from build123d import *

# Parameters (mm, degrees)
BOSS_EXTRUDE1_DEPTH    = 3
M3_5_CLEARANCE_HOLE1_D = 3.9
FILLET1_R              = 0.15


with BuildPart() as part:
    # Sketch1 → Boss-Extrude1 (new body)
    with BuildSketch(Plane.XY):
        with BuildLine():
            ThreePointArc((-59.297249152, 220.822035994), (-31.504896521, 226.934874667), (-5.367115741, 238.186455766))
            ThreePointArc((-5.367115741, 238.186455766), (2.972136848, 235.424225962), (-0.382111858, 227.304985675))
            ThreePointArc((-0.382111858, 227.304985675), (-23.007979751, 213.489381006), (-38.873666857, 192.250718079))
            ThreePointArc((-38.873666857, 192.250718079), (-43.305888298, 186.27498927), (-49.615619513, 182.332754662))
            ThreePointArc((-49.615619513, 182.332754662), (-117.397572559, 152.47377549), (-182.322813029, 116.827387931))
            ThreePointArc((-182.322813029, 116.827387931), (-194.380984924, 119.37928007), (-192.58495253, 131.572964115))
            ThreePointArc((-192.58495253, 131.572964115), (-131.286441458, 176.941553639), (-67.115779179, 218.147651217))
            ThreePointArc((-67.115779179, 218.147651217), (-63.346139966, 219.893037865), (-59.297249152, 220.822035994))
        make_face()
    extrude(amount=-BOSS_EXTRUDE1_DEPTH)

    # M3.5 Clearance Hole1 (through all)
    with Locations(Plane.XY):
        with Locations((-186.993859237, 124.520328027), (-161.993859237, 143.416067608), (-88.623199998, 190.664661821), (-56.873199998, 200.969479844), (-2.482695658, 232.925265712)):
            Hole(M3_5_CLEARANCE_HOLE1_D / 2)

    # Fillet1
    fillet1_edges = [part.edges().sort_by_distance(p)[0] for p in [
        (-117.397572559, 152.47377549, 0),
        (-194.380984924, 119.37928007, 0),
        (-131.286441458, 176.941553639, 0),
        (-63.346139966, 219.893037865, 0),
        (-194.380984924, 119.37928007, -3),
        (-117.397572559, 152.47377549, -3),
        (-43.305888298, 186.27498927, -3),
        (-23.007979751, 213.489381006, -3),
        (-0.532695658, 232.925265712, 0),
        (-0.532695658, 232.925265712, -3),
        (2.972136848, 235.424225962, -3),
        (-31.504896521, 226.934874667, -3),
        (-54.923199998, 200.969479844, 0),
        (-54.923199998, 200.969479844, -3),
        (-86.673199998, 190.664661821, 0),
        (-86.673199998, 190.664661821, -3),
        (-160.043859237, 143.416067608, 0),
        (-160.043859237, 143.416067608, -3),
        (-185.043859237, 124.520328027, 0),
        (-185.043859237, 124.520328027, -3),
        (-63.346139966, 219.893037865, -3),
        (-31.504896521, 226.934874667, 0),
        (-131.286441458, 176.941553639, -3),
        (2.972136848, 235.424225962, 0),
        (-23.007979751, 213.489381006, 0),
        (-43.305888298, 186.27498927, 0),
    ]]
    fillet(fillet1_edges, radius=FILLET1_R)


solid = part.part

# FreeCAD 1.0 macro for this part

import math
import FreeCAD as App
import Part
import Sketcher

V = App.Vector
Q = App.Units.Quantity


def edges_at(feature, points):
    """Names of the edges that pass closest to the given points."""
    edges = feature.Shape.Edges
    near = lambda p: min(range(len(edges)), key=lambda i: edges[i].distToShape(Part.Vertex(*p))[0])
    return sorted({f"Edge{near(p) + 1}" for p in points})

doc = App.newDocument("Part")
body = doc.addObject("PartDesign::Body", "Body")

sketch1 = doc.addObject("Sketcher::SketchObject", "Sketch")
body.addObject(sketch1)
sketch1.AttachmentSupport = (doc.XY_Plane, [""])
sketch1.MapMode = "FlatFace"
sketch1.addGeometry(Part.ArcOfCircle(Part.Circle(V(-77.477618, 369.716207, 0), V(0, 0, 1), 150), math.radians(-83.038495), math.radians(-61.266473)), False)
sketch1.addGeometry(Part.ArcOfCircle(Part.Circle(V(-56.8732, 200.96948, 0), V(0, 0, 1), 20), math.radians(96.961505), math.radians(120.805743)), False)
sketch1.addGeometry(Part.ArcOfCircle(Part.Circle(V(521.832524, -769.597203, 0), V(0, 0, 1), 1150), math.radians(120.805743), math.radians(128.406201)), False)
sketch1.addGeometry(Part.ArcOfCircle(Part.Circle(V(-186.993859, 124.520328, 0), V(0, 0, 1), 9), math.radians(128.406201), math.radians(301.265542)), False)
sketch1.addGeometry(Part.ArcOfCircle(Part.Circle(V(258.831551, -609.728065, 0), V(0, 0, 1), 850), math.radians(111.277112), math.radians(121.265542)), False)
sketch1.addGeometry(Part.ArcOfCircle(Part.Circle(V(-56.8732, 200.96948, 0), V(0, 0, 1), 20), math.radians(-68.722888), math.radians(-25.845001)), False)
sketch1.addGeometry(Part.ArcOfCircle(Part.Circle(V(24.124699, 161.735052, 0), V(0, 0, 1), 70), math.radians(110.493267), math.radians(154.154999)), False)
sketch1.addGeometry(Part.ArcOfCircle(Part.Circle(V(-2.482696, 232.925266, 0), V(0, 0, 1), 6), math.radians(-69.506733), math.radians(118.733527)), False)
sketch1.addConstraint(Sketcher.Constraint("Tangent", 0, 1, 1, 1))
sketch1.addConstraint(Sketcher.Constraint("Tangent", 1, 2, 2, 1))
sketch1.addConstraint(Sketcher.Constraint("Tangent", 2, 2, 3, 1))
sketch1.addConstraint(Sketcher.Constraint("Tangent", 3, 2, 4, 2))
sketch1.addConstraint(Sketcher.Constraint("Tangent", 4, 1, 5, 1))
sketch1.addConstraint(Sketcher.Constraint("Tangent", 5, 2, 6, 2))
sketch1.addConstraint(Sketcher.Constraint("Tangent", 6, 1, 7, 1))
sketch1.addConstraint(Sketcher.Constraint("Tangent", 7, 2, 0, 2))
sketch1.addConstraint(Sketcher.Constraint("Coincident", 5, 3, 1, 3))
sketch1.addConstraint(Sketcher.Constraint("Equal", 1, 5))
sketch1.addConstraint(Sketcher.Constraint("Radius", 0, Q("150 mm")))
sketch1.addConstraint(Sketcher.Constraint("Radius", 1, Q("20 mm")))
sketch1.addConstraint(Sketcher.Constraint("Radius", 2, Q("1150 mm")))
sketch1.addConstraint(Sketcher.Constraint("Radius", 3, Q("9 mm")))
sketch1.addConstraint(Sketcher.Constraint("Radius", 4, Q("850 mm")))
sketch1.addConstraint(Sketcher.Constraint("Radius", 6, Q("70 mm")))
sketch1.addConstraint(Sketcher.Constraint("Radius", 7, Q("6 mm")))
sketch1.addConstraint(Sketcher.Constraint("DistanceX", 1, 3, -1, 1, Q("56.8732 mm")))
sketch1.addConstraint(Sketcher.Constraint("DistanceX", -1, 1, 6, 3, Q("24.124699 mm")))
sketch1.addConstraint(Sketcher.Constraint("DistanceY", -1, 1, 1, 3, Q("200.96948 mm")))
sketch1.addConstraint(Sketcher.Constraint("DistanceX", 3, 3, -1, 1, Q("186.993859 mm")))
sketch1.addConstraint(Sketcher.Constraint("DistanceY", -1, 1, 3, 3, Q("124.520328 mm")))
sketch1.addConstraint(Sketcher.Constraint("DistanceX", 6, 1, -1, 1, Q("0.382112 mm")))
pad1 = doc.addObject("PartDesign::Pad", "Pad")
body.addObject(pad1)
pad1.Profile = sketch1
pad1.Length = 3
pad1.Reversed = True

sketch2 = doc.addObject("Sketcher::SketchObject", "Sketch001")
body.addObject(sketch2)
sketch2.AttachmentSupport = (doc.XY_Plane, [""])
sketch2.MapMode = "FlatFace"
sketch2.addGeometry(Part.Circle(V(-186.993859, 124.520328, 0), V(0, 0, 1), 1.95), False)
sketch2.addGeometry(Part.Circle(V(-161.993859, 143.416068, 0), V(0, 0, 1), 1.95), False)
sketch2.addGeometry(Part.Circle(V(-88.6232, 190.664662, 0), V(0, 0, 1), 1.95), False)
sketch2.addGeometry(Part.Circle(V(-56.8732, 200.96948, 0), V(0, 0, 1), 1.95), False)
sketch2.addGeometry(Part.Circle(V(-2.482696, 232.925266, 0), V(0, 0, 1), 1.95), False)
sketch2.addConstraint(Sketcher.Constraint("Equal", 0, 1))
sketch2.addConstraint(Sketcher.Constraint("Equal", 1, 2))
sketch2.addConstraint(Sketcher.Constraint("Equal", 2, 3))
sketch2.addConstraint(Sketcher.Constraint("Equal", 3, 4))
sketch2.addConstraint(Sketcher.Constraint("Diameter", 0, Q("3.9 mm")))
sketch2.addConstraint(Sketcher.Constraint("DistanceX", 0, 3, 1, 3, Q("25 mm")))
sketch2.addConstraint(Sketcher.Constraint("DistanceX", 2, 3, 3, 3, Q("31.75 mm")))
sketch2.addConstraint(Sketcher.Constraint("DistanceX", 2, 3, -1, 1, Q("88.6232 mm")))
sketch2.addConstraint(Sketcher.Constraint("DistanceY", 1, 3, 4, 3, Q("89.509198 mm")))
sketch2.addConstraint(Sketcher.Constraint("DistanceX", 0, 3, -1, 1, Q("186.993859 mm")))
sketch2.addConstraint(Sketcher.Constraint("DistanceY", -1, 1, 0, 3, Q("124.520328 mm")))
sketch2.addConstraint(Sketcher.Constraint("DistanceY", -1, 1, 2, 3, Q("190.664662 mm")))
sketch2.addConstraint(Sketcher.Constraint("DistanceY", -1, 1, 3, 3, Q("200.96948 mm")))
sketch2.addConstraint(Sketcher.Constraint("DistanceY", 0, 3, 1, 3, Q("18.89574 mm")))
sketch2.addConstraint(Sketcher.Constraint("DistanceX", 4, 3, -1, 1, Q("2.482696 mm")))
doc.recompute()
hole = doc.addObject("PartDesign::Hole", "Hole")
body.addObject(hole)
hole.Profile = sketch2
hole.ThreadType = "None"
hole.Diameter = 3.9
hole.DepthType = "ThroughAll"
doc.recompute()

fillet = doc.addObject("PartDesign::Fillet", "Fillet")
body.addObject(fillet)
fillet.Base = (hole, edges_at(hole, [
    (-117.398, 152.474, 0),
    (-194.381, 119.379, 0),
    (-131.286, 176.942, 0),
    (-63.346, 219.893, 0),
    (-194.381, 119.379, -3),
    (-117.398, 152.474, -3),
    (-43.306, 186.275, -3),
    (-23.008, 213.489, -3),
    (-0.533, 232.925, 0),
    (-0.533, 232.925, -3),
    (2.972, 235.424, -3),
    (-31.505, 226.935, -3),
    (-54.923, 200.969, 0),
    (-54.923, 200.969, -3),
    (-86.673, 190.665, 0),
    (-86.673, 190.665, -3),
    (-160.044, 143.416, 0),
    (-160.044, 143.416, -3),
    (-185.044, 124.52, 0),
    (-185.044, 124.52, -3),
    (-63.346, 219.893, -3),
    (-31.505, 226.935, 0),
    (-131.286, 176.942, -3),
    (2.972, 235.424, 0),
    (-23.008, 213.489, 0),
    (-43.306, 186.275, 0),
]))
fillet.Radius = 0.15

doc.recompute()
